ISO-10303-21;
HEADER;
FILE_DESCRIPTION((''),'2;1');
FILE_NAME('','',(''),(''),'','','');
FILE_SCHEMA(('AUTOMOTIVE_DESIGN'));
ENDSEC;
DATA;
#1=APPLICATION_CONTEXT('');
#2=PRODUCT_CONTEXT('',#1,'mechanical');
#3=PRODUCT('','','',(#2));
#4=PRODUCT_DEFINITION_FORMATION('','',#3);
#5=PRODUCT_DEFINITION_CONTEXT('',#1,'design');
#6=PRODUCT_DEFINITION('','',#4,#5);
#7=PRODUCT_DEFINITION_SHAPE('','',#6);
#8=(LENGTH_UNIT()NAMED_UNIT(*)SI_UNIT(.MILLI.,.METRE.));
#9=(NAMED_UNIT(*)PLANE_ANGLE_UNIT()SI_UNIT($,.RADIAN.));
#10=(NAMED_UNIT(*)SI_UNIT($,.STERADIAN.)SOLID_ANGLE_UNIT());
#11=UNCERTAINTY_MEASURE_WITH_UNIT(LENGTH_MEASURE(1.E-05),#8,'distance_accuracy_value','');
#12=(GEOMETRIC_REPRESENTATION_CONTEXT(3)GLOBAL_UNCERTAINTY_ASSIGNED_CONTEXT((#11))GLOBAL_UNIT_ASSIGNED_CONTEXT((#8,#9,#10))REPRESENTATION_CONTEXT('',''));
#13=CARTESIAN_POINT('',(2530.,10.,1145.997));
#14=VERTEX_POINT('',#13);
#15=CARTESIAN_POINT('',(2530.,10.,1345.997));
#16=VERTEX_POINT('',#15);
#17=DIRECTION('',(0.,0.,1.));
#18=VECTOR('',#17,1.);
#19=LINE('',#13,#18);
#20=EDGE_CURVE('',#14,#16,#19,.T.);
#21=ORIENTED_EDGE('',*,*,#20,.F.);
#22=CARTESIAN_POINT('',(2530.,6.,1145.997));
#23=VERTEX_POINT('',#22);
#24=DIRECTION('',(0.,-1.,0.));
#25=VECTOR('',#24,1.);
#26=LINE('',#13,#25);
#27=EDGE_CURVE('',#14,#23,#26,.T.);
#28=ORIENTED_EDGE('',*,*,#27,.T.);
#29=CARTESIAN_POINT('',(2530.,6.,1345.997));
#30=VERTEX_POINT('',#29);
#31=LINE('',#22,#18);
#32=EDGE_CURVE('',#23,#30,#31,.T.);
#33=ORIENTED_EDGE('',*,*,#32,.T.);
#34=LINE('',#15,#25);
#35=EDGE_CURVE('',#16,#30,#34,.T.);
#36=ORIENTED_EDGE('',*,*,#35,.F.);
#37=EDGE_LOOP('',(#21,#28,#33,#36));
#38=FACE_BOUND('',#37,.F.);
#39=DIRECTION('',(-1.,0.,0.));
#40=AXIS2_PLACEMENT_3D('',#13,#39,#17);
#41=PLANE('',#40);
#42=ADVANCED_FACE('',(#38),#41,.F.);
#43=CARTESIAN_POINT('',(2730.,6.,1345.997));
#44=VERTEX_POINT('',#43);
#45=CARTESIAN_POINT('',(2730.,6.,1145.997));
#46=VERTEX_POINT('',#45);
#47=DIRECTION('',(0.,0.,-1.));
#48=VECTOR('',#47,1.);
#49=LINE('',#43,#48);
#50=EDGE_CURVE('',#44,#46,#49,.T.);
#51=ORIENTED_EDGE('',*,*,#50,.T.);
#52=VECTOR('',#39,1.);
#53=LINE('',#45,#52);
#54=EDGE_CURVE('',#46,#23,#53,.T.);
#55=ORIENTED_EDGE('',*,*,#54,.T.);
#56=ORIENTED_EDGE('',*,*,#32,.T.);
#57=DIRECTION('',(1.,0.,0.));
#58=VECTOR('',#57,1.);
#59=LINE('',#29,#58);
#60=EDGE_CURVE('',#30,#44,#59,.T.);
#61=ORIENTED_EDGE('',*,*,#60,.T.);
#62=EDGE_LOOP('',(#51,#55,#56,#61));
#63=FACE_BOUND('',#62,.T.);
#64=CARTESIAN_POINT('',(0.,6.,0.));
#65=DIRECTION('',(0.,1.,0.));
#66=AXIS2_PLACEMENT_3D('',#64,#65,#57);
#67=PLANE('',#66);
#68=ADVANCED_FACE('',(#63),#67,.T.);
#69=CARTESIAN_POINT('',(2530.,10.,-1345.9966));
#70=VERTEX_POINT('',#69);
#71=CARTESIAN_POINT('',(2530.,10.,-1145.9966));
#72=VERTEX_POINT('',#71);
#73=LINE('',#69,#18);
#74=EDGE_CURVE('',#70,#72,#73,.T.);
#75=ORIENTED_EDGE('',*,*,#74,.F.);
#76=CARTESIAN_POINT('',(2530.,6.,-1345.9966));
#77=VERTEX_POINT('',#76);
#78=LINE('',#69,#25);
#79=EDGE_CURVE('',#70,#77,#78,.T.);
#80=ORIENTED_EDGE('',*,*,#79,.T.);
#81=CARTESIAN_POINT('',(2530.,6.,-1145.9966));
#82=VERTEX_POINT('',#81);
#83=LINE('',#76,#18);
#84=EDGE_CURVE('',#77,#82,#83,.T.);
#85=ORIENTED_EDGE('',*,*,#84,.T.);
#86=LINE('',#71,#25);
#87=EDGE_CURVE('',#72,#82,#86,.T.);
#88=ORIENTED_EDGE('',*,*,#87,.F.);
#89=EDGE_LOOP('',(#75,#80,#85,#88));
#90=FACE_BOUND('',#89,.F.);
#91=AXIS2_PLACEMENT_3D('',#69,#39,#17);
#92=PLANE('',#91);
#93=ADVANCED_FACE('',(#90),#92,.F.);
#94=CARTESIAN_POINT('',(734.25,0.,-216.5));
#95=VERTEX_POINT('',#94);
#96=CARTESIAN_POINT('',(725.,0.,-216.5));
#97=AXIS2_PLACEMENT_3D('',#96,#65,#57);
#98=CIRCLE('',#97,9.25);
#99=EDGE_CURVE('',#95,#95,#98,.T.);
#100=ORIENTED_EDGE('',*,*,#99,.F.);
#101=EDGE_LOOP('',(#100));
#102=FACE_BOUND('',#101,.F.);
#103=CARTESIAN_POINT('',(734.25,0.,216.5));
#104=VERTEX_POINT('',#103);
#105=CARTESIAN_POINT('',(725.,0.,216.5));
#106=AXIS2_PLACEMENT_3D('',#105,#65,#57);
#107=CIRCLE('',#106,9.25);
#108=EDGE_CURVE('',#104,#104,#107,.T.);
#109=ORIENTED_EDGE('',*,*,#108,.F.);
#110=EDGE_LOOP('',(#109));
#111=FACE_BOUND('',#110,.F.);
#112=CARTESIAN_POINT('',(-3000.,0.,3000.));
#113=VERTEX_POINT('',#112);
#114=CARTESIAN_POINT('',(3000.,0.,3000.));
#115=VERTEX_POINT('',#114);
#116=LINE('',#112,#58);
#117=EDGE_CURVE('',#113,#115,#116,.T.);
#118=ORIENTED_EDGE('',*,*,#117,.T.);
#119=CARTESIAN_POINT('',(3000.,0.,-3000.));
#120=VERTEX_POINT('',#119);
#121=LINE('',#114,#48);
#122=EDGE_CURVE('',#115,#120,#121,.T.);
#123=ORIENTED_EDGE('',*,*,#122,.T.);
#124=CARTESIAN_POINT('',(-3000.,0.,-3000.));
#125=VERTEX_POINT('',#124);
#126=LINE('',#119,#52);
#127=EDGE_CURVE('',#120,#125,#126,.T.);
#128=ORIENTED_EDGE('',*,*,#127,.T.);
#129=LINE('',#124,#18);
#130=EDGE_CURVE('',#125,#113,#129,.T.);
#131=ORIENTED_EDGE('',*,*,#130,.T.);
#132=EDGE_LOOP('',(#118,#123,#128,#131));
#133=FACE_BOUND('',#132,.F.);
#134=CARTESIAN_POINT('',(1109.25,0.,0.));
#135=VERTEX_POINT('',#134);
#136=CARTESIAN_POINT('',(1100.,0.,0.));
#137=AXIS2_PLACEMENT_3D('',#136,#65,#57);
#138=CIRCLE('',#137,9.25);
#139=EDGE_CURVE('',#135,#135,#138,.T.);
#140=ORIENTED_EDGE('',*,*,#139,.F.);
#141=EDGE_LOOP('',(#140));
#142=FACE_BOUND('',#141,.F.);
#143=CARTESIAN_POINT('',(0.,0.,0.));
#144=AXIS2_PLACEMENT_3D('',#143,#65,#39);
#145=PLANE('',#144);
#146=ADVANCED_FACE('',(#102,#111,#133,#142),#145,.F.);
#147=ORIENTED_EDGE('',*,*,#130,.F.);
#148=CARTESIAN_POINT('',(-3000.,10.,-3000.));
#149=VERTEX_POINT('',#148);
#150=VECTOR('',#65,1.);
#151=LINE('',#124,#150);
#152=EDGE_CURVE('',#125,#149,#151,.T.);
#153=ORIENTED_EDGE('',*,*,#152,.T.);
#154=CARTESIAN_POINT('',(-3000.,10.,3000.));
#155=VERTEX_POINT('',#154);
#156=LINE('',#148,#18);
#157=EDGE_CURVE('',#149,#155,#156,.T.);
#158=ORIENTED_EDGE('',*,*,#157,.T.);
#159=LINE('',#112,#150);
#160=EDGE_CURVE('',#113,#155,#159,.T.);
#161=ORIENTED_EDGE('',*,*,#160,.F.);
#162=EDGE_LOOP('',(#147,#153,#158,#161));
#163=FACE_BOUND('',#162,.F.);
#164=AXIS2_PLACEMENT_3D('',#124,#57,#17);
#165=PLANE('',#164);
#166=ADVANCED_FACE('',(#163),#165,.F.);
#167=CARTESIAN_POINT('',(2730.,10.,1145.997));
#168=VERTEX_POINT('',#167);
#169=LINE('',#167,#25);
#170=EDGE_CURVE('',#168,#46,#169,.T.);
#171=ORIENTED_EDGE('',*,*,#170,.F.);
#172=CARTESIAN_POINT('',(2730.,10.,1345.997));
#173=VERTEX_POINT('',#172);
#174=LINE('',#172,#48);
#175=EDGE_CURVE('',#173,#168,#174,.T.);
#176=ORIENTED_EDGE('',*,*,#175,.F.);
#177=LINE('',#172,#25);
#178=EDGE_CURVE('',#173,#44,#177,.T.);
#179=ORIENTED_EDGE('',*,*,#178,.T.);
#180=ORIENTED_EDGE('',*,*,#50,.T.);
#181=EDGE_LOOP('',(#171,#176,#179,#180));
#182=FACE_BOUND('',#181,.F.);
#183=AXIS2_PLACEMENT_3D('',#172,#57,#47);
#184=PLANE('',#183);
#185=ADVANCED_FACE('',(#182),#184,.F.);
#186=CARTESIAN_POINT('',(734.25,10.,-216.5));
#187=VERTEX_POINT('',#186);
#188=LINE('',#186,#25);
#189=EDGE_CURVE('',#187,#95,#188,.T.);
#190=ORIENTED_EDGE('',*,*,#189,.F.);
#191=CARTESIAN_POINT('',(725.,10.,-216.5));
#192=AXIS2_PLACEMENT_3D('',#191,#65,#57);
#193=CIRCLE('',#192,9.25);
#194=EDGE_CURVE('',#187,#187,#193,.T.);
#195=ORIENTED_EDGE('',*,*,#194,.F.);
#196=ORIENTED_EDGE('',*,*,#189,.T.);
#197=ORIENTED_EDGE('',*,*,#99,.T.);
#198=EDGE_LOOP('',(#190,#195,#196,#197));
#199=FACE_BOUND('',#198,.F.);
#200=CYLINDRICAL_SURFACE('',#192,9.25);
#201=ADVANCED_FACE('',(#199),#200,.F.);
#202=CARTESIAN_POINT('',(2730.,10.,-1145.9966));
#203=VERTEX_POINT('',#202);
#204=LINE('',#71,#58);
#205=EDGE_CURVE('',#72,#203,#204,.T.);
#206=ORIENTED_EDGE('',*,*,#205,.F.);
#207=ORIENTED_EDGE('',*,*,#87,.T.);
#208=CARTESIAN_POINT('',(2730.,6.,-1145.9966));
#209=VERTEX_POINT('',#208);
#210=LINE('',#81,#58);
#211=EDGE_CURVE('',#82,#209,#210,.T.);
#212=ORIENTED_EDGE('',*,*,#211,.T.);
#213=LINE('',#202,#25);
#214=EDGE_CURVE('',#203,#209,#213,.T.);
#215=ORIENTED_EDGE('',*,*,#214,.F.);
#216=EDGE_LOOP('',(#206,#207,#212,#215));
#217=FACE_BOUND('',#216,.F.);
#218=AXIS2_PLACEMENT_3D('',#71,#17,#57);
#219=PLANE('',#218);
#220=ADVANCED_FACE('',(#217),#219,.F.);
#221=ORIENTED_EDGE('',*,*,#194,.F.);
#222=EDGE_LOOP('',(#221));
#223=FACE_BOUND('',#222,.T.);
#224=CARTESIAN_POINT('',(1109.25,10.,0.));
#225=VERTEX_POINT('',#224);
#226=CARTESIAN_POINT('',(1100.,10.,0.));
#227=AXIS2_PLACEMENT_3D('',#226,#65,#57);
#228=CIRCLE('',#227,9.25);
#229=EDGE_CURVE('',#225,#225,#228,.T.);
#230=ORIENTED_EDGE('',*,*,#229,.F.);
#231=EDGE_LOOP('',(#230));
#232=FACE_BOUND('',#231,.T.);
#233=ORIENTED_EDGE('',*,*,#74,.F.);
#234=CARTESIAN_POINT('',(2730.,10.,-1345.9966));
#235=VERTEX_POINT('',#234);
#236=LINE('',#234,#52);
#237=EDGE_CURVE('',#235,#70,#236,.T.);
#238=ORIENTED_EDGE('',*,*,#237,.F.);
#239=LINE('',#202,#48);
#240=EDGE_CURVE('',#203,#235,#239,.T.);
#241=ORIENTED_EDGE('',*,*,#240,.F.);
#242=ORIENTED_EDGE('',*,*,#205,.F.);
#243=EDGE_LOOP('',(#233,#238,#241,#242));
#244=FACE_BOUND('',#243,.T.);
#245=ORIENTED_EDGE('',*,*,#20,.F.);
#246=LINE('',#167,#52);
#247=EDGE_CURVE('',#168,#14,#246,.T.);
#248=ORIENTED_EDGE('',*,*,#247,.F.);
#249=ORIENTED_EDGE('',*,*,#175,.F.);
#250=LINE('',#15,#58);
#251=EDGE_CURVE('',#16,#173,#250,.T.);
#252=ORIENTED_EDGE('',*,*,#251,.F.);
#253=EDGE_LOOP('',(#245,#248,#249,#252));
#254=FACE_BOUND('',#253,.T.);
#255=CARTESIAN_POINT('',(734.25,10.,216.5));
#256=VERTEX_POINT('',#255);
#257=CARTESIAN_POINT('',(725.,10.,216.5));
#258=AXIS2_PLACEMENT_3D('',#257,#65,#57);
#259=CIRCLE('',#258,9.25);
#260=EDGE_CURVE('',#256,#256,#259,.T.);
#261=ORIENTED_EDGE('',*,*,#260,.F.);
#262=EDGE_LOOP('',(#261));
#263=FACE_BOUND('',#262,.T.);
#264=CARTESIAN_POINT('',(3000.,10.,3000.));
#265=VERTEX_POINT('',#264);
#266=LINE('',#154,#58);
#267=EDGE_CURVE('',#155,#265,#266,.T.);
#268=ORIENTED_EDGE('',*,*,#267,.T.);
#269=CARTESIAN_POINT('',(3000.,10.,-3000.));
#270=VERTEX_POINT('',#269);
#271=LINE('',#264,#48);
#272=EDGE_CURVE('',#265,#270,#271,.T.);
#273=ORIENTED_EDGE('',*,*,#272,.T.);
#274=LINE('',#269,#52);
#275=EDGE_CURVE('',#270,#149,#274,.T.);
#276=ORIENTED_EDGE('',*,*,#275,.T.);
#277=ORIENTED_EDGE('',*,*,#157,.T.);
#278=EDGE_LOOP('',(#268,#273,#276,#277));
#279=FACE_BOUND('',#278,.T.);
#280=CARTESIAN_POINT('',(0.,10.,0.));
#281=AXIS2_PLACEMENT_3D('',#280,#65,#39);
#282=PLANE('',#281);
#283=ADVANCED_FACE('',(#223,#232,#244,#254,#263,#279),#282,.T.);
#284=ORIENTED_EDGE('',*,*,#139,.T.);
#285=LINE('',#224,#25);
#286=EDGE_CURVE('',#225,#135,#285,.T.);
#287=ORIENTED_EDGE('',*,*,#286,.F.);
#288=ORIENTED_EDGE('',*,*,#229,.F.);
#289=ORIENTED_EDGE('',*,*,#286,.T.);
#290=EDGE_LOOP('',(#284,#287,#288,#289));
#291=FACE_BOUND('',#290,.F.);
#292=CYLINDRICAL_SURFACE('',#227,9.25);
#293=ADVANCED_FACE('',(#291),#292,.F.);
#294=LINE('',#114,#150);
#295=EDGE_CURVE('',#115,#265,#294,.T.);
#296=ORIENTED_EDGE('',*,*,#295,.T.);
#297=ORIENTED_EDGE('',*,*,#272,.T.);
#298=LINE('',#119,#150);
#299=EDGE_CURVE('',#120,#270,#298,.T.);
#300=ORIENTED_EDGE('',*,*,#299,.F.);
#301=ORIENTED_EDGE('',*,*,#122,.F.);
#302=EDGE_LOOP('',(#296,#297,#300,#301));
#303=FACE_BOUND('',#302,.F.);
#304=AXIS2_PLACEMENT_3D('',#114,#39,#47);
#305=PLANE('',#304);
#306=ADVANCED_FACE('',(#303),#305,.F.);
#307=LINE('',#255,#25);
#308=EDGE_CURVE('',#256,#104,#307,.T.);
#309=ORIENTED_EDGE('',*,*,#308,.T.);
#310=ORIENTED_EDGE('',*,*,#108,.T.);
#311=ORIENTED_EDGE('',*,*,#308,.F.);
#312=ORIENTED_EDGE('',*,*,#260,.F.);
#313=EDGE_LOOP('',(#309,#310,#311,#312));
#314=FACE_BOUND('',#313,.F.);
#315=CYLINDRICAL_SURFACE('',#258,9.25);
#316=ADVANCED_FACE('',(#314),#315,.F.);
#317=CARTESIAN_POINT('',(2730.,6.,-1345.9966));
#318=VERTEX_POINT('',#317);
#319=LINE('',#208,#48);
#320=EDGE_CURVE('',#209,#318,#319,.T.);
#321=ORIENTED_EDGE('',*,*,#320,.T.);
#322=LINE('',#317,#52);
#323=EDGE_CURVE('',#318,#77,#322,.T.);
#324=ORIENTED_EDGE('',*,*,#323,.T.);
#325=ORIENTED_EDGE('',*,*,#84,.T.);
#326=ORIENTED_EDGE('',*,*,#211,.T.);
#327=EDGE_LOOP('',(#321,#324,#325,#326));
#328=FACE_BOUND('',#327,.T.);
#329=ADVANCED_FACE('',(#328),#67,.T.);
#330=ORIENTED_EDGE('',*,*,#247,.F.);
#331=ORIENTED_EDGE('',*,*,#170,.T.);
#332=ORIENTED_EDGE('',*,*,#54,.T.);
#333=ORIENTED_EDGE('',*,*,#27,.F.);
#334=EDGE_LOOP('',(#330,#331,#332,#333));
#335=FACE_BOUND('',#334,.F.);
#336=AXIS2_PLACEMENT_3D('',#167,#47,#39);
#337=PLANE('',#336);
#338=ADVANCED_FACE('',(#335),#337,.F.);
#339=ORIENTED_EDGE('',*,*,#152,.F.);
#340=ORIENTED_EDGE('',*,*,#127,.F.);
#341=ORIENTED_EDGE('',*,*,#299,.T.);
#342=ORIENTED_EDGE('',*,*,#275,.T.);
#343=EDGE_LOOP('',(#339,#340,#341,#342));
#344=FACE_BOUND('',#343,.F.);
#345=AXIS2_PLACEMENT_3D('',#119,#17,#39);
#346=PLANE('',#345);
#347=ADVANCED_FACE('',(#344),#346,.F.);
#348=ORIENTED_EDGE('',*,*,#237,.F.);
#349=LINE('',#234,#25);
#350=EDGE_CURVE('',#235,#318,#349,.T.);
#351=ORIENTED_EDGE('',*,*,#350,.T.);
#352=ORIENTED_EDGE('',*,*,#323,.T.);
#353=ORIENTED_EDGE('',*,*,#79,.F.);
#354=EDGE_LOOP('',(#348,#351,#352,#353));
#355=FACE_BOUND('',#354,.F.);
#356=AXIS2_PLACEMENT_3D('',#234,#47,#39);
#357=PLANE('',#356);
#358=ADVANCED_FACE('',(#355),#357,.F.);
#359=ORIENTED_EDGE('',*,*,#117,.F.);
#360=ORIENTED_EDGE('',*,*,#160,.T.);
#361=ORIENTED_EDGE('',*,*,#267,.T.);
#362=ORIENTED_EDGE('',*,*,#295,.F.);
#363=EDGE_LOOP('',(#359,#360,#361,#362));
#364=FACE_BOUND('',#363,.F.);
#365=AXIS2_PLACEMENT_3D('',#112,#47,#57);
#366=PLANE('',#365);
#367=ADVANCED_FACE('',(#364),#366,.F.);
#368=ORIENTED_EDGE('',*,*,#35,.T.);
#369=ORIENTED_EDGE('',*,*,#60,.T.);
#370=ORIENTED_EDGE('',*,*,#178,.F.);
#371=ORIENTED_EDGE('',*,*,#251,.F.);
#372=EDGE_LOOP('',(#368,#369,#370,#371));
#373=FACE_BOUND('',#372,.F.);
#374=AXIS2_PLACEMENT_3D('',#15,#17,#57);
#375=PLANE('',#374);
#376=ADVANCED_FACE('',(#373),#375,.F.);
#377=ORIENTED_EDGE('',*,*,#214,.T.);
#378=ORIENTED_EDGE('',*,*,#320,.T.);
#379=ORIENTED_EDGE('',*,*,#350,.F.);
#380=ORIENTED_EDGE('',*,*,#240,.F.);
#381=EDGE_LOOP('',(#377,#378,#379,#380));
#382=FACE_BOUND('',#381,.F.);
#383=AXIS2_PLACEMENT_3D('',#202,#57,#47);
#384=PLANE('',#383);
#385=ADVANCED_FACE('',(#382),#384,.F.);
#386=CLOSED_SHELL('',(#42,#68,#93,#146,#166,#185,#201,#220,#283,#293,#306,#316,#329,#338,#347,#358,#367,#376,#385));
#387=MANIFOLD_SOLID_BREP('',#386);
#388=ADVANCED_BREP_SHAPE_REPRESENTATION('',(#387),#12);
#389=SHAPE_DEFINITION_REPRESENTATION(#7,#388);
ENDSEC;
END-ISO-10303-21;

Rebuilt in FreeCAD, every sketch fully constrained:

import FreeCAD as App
import Part
import Sketcher


def add_polygon(sketch, points):
    """Adds a closed chain of lines whose ends are joined by coincident constraints."""
    first, n = sketch.GeometryCount, len(points)
    for a, b in zip(points, points[1:] + points[:1]):
        sketch.addGeometry(Part.LineSegment(App.Vector(*a, 0), App.Vector(*b, 0)), False)
    for i in range(n):
        sketch.addConstraint(Sketcher.Constraint("Coincident", first + i, 2, first + (i + 1) % n, 1))

doc = App.newDocument("Part")
body = doc.addObject("PartDesign::Body", "Body")

sketch1 = body.newObject("Sketcher::SketchObject", "Sketch")
sketch1.AttachmentSupport = (doc.getObject("XZ_Plane"), [""])
sketch1.MapMode = "FlatFace"
add_polygon(sketch1, [(-3000, -3000), (-3000, 3000), (3000, 3000), (3000, -3000)])
sketch1.addConstraint([
    Sketcher.Constraint("Vertical", 0),
    Sketcher.Constraint("Horizontal", 1),
    Sketcher.Constraint("Vertical", 2),
    Sketcher.Constraint("Horizontal", 3),
    Sketcher.Constraint("Symmetric", 0, 2, 2, 2, -1, 1),
    Sketcher.Constraint("Equal", 3, 0),
    Sketcher.Constraint("DistanceX", 1, 1, 1, 2, 6000.0),
])
pad1 = body.newObject("PartDesign::Pad", "Pad")
pad1.Profile = sketch1
pad1.Length = 10
pad1.Reversed = True

sketch2 = body.newObject("Sketcher::SketchObject", "Sketch001")
sketch2.AttachmentSupport = (doc.getObject("XZ_Plane"), [""])
sketch2.MapMode = "FlatFace"
sketch2.AttachmentOffset = App.Placement(App.Vector(0, 0, -10), App.Rotation())
sketch2.addGeometry([
    Part.Circle(App.Vector(1100, 0, 0), App.Vector(0, 0, 1), 9),
    Part.Circle(App.Vector(725, 216, 0), App.Vector(0, 0, 1), 9),
    Part.Circle(App.Vector(725, -216, 0), App.Vector(0, 0, 1), 9),
], False)
sketch2.addConstraint([
    Sketcher.Constraint("Equal", 0, 1),
    Sketcher.Constraint("Equal", 1, 2),
    Sketcher.Constraint("Symmetric", 1, 3, 2, 3, -1),
    Sketcher.Constraint("PointOnObject", 0, 3, -1),
    Sketcher.Constraint("Diameter", 0, 18.5),
    Sketcher.Constraint("DistanceX", 1, 3, 0, 3, 375.0),
    Sketcher.Constraint("DistanceY", -1, 1, 1, 3, 216.5),
    Sketcher.Constraint("DistanceX", -1, 1, 0, 3, 1100.0),
])
pocket1 = body.newObject("PartDesign::Pocket", "Pocket")
pocket1.Profile = sketch2
pocket1.Length = 10
pocket1.Reversed = True

sketch3 = body.newObject("Sketcher::SketchObject", "Sketch002")
sketch3.AttachmentSupport = (doc.getObject("XZ_Plane"), [""])
sketch3.MapMode = "FlatFace"
sketch3.AttachmentOffset = App.Placement(App.Vector(0, 0, -10), App.Rotation())
add_polygon(sketch3, [(2730, 1345.997), (2730, 1145.997), (2530, 1145.997), (2530, 1345.997)])
add_polygon(sketch3, [(2730, -1145.9966), (2730, -1345.9966), (2530, -1345.9966), (2530, -1145.9966)])
sketch3.addConstraint([
    Sketcher.Constraint("Vertical", 0),
    Sketcher.Constraint("Horizontal", 1),
    Sketcher.Constraint("Vertical", 2),
    Sketcher.Constraint("Horizontal", 3),
    Sketcher.Constraint("Vertical", 4),
    Sketcher.Constraint("Horizontal", 5),
    Sketcher.Constraint("Vertical", 6),
    Sketcher.Constraint("Horizontal", 7),
    Sketcher.Constraint("Vertical", 3, 2, 4, 2),
    Sketcher.Constraint("Vertical", 2, 2, 5, 2),
    Sketcher.Constraint("Equal", 7, 0),
    Sketcher.Constraint("Equal", 2, 4),
    Sketcher.Constraint("DistanceX", 1, 2, 1, 1, 200.0),
    Sketcher.Constraint("DistanceY", -1, 1, 2, 2, 1345.997),
    Sketcher.Constraint("DistanceX", -1, 1, 0, 2, 2730.0),
    Sketcher.Constraint("DistanceY", 4, 2, -1, 1, 1345.9966),
])
pocket2 = body.newObject("PartDesign::Pocket", "Pocket001")
pocket2.Profile = sketch3
pocket2.Length = 4
pocket2.Reversed = True

doc.recompute()
